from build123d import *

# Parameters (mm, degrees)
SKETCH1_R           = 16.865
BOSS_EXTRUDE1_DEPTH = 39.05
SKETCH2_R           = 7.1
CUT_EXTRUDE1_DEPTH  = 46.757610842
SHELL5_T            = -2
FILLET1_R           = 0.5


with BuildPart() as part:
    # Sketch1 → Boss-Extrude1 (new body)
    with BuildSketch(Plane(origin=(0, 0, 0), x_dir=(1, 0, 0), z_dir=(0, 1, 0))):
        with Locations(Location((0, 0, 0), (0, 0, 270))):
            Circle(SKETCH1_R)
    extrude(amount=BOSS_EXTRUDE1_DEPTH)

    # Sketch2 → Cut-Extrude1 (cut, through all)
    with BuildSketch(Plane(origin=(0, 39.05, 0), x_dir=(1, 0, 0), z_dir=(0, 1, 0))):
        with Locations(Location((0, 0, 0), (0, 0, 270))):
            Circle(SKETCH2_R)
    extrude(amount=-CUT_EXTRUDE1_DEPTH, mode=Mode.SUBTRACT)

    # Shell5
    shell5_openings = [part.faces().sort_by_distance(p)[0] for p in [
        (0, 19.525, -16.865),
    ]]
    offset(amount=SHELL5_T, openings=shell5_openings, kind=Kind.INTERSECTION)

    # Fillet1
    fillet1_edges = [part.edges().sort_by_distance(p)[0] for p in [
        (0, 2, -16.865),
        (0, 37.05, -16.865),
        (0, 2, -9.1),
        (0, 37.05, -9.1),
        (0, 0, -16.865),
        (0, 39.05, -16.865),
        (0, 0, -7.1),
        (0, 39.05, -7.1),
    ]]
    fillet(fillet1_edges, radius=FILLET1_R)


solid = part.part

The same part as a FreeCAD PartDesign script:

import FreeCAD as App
import Part
import Sketcher
from FreeCAD import Vector
Q = App.Units.Quantity


def edges_at(feature, points):
    """Names of the edges that pass closest to the given points."""
    edges = feature.Shape.Edges
    near = lambda p: min(range(len(edges)), key=lambda i: edges[i].distToShape(Part.Vertex(*p))[0])
    return sorted({f"Edge{near(p) + 1}" for p in points})


def faces_at(feature, points):
    """Names of the faces that lie closest to the given points."""
    faces = feature.Shape.Faces
    near = lambda p: min(range(len(faces)), key=lambda i: faces[i].distToShape(Part.Vertex(*p))[0])
    return sorted({f"Face{near(p) + 1}" for p in points})

doc = App.newDocument("Part")
body = doc.addObject("PartDesign::Body", "Body")

sketch1 = body.newObject("Sketcher::SketchObject", "Sketch")
sketch1.AttachmentSupport = (doc.getObject("XZ_Plane"), [""])
sketch1.MapMode = "FlatFace"
sketch1.addGeometry(Part.Circle(Vector(0, 0, 0), Vector(0, 0, 1), 16.865), False)
sketch1.addConstraint([
    Sketcher.Constraint("Coincident", 0, 3, -1, 1),
    Sketcher.Constraint("Diameter", 0, Q("33.73 mm")),
])
pad1 = body.newObject("PartDesign::Pad", "Pad")
pad1.Profile = sketch1
pad1.Length = 39.05
pad1.Reversed = True

sketch2 = body.newObject("Sketcher::SketchObject", "Sketch001")
sketch2.AttachmentSupport = (doc.getObject("XZ_Plane"), [""])
sketch2.MapMode = "FlatFace"
sketch2.AttachmentOffset = App.Placement(Vector(0, 0, -39.05), App.Rotation())
sketch2.addGeometry(Part.Circle(Vector(0, 0, 0), Vector(0, 0, 1), 7.1), False)
sketch2.addConstraint([
    Sketcher.Constraint("Coincident", 0, 3, -1, 1),
    Sketcher.Constraint("Diameter", 0, Q("14.2 mm")),
])
pocket1 = body.newObject("PartDesign::Pocket", "Pocket")
pocket1.Profile = sketch2
pocket1.Type = "ThroughAll"
pocket1.Reversed = True
doc.recompute()

thickness = body.newObject("PartDesign::Thickness", "Thickness")
thickness.Base = (pocket1, faces_at(pocket1, [(0, 19.525, -16.865)]))
thickness.Value = 2
thickness.Reversed = True
thickness.Join = "Intersection"
doc.recompute()

fillet = body.newObject("PartDesign::Fillet", "Fillet")
fillet.Base = (thickness, edges_at(thickness, [
    (0, 2, -16.865),
    (0, 37.05, -16.865),
    (0, 2, -9.1),
    (0, 37.05, -9.1),
    (0, 0, -16.865),
    (0, 39.05, -16.865),
    (0, 0, -7.1),
    (0, 39.05, -7.1),
]))
fillet.Radius = 0.5

doc.recompute()
